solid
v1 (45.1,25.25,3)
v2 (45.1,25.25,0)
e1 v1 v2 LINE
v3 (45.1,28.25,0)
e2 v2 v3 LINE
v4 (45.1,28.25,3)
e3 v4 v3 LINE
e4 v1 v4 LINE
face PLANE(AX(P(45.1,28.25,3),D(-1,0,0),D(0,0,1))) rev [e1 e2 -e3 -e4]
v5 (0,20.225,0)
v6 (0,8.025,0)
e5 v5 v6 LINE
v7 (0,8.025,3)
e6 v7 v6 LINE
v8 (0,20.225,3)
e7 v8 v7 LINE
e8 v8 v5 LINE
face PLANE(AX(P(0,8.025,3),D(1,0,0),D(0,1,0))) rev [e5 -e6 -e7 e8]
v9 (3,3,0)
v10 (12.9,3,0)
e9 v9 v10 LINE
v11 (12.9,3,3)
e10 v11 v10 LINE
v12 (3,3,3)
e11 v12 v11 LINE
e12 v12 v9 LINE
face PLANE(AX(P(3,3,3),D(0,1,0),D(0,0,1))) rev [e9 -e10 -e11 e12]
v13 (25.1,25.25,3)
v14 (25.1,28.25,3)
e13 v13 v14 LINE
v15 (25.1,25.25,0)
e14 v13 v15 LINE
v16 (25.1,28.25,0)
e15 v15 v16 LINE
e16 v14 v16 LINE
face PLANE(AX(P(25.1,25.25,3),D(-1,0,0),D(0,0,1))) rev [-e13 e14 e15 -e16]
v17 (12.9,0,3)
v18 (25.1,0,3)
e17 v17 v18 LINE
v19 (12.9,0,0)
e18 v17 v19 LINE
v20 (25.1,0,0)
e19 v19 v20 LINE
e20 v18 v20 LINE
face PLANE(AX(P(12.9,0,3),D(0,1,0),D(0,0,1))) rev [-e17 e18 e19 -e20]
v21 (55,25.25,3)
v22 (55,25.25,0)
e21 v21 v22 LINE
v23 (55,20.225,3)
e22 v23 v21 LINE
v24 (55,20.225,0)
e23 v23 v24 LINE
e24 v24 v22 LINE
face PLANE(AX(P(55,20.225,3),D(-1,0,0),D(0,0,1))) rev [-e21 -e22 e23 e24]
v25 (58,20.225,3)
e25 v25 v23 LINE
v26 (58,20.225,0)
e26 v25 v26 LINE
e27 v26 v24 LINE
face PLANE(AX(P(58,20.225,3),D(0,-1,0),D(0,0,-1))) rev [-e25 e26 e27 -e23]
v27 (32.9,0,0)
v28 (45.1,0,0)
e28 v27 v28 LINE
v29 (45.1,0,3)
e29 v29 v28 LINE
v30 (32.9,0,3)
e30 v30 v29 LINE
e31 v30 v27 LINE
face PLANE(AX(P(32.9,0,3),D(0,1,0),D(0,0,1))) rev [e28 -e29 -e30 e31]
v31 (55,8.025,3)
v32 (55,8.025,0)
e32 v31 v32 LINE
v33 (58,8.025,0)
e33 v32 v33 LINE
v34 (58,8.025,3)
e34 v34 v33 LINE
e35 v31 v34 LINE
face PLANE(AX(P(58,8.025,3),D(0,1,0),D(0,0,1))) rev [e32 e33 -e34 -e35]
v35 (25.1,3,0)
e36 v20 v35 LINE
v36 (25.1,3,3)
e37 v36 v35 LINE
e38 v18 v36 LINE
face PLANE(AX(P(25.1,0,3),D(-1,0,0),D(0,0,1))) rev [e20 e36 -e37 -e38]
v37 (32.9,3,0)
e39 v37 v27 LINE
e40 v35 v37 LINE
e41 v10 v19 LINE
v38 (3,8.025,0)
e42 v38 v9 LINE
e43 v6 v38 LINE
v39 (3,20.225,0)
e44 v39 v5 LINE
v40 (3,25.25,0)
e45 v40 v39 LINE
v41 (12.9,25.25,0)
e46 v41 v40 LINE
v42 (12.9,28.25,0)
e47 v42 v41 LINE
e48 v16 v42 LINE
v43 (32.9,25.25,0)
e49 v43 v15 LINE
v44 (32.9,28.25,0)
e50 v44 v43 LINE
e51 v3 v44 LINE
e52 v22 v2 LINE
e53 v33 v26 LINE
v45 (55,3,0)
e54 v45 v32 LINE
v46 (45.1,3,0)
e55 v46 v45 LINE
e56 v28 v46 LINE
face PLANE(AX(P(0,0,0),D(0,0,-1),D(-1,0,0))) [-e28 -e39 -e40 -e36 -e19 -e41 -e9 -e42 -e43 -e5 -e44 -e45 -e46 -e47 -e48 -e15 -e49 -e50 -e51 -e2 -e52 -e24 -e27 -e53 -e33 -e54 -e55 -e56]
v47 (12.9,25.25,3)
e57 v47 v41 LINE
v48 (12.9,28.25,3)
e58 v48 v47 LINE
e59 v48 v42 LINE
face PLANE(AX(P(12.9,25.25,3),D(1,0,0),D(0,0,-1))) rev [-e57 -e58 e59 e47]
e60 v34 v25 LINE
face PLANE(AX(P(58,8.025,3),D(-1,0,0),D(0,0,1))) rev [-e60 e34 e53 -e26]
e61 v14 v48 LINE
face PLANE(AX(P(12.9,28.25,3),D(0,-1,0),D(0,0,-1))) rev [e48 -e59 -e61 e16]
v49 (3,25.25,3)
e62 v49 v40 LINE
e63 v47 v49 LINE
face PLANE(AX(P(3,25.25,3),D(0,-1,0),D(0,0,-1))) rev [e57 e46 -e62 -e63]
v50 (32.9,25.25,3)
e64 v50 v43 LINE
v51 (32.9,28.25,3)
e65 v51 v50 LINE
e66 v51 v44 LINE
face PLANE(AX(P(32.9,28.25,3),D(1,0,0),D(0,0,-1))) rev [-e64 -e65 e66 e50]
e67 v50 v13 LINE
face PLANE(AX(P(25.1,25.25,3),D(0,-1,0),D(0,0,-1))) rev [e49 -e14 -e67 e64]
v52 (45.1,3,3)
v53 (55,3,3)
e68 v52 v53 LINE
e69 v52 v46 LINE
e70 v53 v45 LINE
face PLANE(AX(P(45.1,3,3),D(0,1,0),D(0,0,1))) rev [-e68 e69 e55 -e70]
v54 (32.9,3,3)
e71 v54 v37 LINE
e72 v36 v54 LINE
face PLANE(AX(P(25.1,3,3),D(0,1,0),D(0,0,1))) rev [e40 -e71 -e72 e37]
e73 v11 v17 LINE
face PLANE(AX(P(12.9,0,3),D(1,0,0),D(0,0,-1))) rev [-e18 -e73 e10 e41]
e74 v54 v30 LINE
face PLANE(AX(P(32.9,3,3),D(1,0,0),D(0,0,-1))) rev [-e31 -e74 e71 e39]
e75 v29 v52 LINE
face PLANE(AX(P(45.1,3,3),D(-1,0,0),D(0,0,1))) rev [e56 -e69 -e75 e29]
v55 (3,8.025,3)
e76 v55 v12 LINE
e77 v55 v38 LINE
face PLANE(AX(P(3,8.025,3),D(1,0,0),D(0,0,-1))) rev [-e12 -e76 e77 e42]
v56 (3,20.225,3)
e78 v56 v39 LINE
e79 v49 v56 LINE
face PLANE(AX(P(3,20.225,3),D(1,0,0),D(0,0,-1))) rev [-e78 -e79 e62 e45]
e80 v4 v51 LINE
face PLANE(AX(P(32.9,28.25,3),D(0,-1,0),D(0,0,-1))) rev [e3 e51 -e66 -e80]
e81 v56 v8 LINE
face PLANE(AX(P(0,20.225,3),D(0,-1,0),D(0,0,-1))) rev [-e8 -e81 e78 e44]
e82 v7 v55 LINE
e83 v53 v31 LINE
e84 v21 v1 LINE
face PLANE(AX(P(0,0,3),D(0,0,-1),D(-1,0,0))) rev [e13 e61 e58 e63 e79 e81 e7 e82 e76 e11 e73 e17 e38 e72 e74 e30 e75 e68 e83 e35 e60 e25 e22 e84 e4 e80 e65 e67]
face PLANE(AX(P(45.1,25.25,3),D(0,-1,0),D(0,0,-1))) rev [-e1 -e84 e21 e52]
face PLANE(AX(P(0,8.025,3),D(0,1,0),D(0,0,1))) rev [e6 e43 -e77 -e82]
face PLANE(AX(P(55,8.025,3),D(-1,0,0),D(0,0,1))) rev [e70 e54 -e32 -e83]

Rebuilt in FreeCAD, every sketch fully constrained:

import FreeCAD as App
import Part
import Sketcher

V = App.Vector
Q = App.Units.Quantity

doc = App.newDocument("Part")
params = doc.addObject("Spreadsheet::Sheet", "Params")
for row, (alias, value) in enumerate([
    ("sketch1_width", "3 mm"),
    ("sketch1_width2", "12.2 mm"),
    ("sketch1_width3", "9.9 mm"),
    ("sketch1_width4", "7.8 mm"),
    ("pad1_length", "3 mm"),
], start=1):
    params.set(f"A{row}", alias)
    params.set(f"B{row}", "=" + value)
    params.setAlias(f"B{row}", alias)

body = doc.addObject("PartDesign::Body", "Body")

sketch1 = body.newObject("Sketcher::SketchObject", "Sketch")
sketch1.AttachmentSupport = (doc.getObject("XY_Plane"), [""])
sketch1.MapMode = "FlatFace"
sketch1.addGeometry(Part.LineSegment(V(32.9, 0, 0), V(45.1, 0, 0)), False)
sketch1.addGeometry(Part.LineSegment(V(45.1, 0, 0), V(45.1, 3, 0)), False)
sketch1.addGeometry(Part.LineSegment(V(45.1, 3, 0), V(55, 3, 0)), False)
sketch1.addGeometry(Part.LineSegment(V(55, 3, 0), V(55, 8, 0)), False)
sketch1.addGeometry(Part.LineSegment(V(55, 8, 0), V(58, 8, 0)), False)
sketch1.addGeometry(Part.LineSegment(V(58, 8, 0), V(58, 20.2, 0)), False)
sketch1.addGeometry(Part.LineSegment(V(58, 20.2, 0), V(55, 20.2, 0)), False)
sketch1.addGeometry(Part.LineSegment(V(55, 20.2, 0), V(55, 25.2, 0)), False)
sketch1.addGeometry(Part.LineSegment(V(55, 25.2, 0), V(45.1, 25.2, 0)), False)
sketch1.addGeometry(Part.LineSegment(V(45.1, 25.2, 0), V(45.1, 28.2, 0)), False)
sketch1.addGeometry(Part.LineSegment(V(45.1, 28.2, 0), V(32.9, 28.2, 0)), False)
sketch1.addGeometry(Part.LineSegment(V(32.9, 28.2, 0), V(32.9, 25.2, 0)), False)
sketch1.addGeometry(Part.LineSegment(V(32.9, 25.2, 0), V(25.1, 25.2, 0)), False)
sketch1.addGeometry(Part.LineSegment(V(25.1, 25.2, 0), V(25.1, 28.2, 0)), False)
sketch1.addGeometry(Part.LineSegment(V(25.1, 28.2, 0), V(12.9, 28.2, 0)), False)
sketch1.addGeometry(Part.LineSegment(V(12.9, 28.2, 0), V(12.9, 25.2, 0)), False)
sketch1.addGeometry(Part.LineSegment(V(12.9, 25.2, 0), V(3, 25.2, 0)), False)
sketch1.addGeometry(Part.LineSegment(V(3, 25.2, 0), V(3, 20.2, 0)), False)
sketch1.addGeometry(Part.LineSegment(V(3, 20.2, 0), V(0, 20.2, 0)), False)
sketch1.addGeometry(Part.LineSegment(V(0, 20.2, 0), V(0, 8, 0)), False)
sketch1.addGeometry(Part.LineSegment(V(0, 8, 0), V(3, 8, 0)), False)
sketch1.addGeometry(Part.LineSegment(V(3, 8, 0), V(3, 3, 0)), False)
sketch1.addGeometry(Part.LineSegment(V(3, 3, 0), V(12.9, 3, 0)), False)
sketch1.addGeometry(Part.LineSegment(V(12.9, 3, 0), V(12.9, 0, 0)), False)
sketch1.addGeometry(Part.LineSegment(V(12.9, 0, 0), V(25.1, 0, 0)), False)
sketch1.addGeometry(Part.LineSegment(V(25.1, 0, 0), V(25.1, 3, 0)), False)
sketch1.addGeometry(Part.LineSegment(V(25.1, 3, 0), V(32.9, 3, 0)), False)
sketch1.addGeometry(Part.LineSegment(V(32.9, 3, 0), V(32.9, 0, 0)), False)
sketch1.addConstraint(Sketcher.Constraint("Coincident", 0, 2, 1, 1))
sketch1.addConstraint(Sketcher.Constraint("Coincident", 1, 2, 2, 1))
sketch1.addConstraint(Sketcher.Constraint("Coincident", 2, 2, 3, 1))
sketch1.addConstraint(Sketcher.Constraint("Coincident", 3, 2, 4, 1))
sketch1.addConstraint(Sketcher.Constraint("Coincident", 4, 2, 5, 1))
sketch1.addConstraint(Sketcher.Constraint("Coincident", 5, 2, 6, 1))
sketch1.addConstraint(Sketcher.Constraint("Coincident", 6, 2, 7, 1))
sketch1.addConstraint(Sketcher.Constraint("Coincident", 7, 2, 8, 1))
sketch1.addConstraint(Sketcher.Constraint("Coincident", 8, 2, 9, 1))
sketch1.addConstraint(Sketcher.Constraint("Coincident", 9, 2, 10, 1))
sketch1.addConstraint(Sketcher.Constraint("Coincident", 10, 2, 11, 1))
sketch1.addConstraint(Sketcher.Constraint("Coincident", 11, 2, 12, 1))
sketch1.addConstraint(Sketcher.Constraint("Coincident", 12, 2, 13, 1))
sketch1.addConstraint(Sketcher.Constraint("Coincident", 13, 2, 14, 1))
sketch1.addConstraint(Sketcher.Constraint("Coincident", 14, 2, 15, 1))
sketch1.addConstraint(Sketcher.Constraint("Coincident", 15, 2, 16, 1))
sketch1.addConstraint(Sketcher.Constraint("Coincident", 16, 2, 17, 1))
sketch1.addConstraint(Sketcher.Constraint("Coincident", 17, 2, 18, 1))
sketch1.addConstraint(Sketcher.Constraint("Coincident", 18, 2, 19, 1))
sketch1.addConstraint(Sketcher.Constraint("Coincident", 19, 2, 20, 1))
sketch1.addConstraint(Sketcher.Constraint("Coincident", 20, 2, 21, 1))
sketch1.addConstraint(Sketcher.Constraint("Coincident", 21, 2, 22, 1))
sketch1.addConstraint(Sketcher.Constraint("Coincident", 22, 2, 23, 1))
sketch1.addConstraint(Sketcher.Constraint("Coincident", 23, 2, 24, 1))
sketch1.addConstraint(Sketcher.Constraint("Coincident", 24, 2, 25, 1))
sketch1.addConstraint(Sketcher.Constraint("Coincident", 25, 2, 26, 1))
sketch1.addConstraint(Sketcher.Constraint("Coincident", 26, 2, 27, 1))
sketch1.addConstraint(Sketcher.Constraint("Coincident", 27, 2, 0, 1))
sketch1.addConstraint(Sketcher.Constraint("Horizontal", 0))
sketch1.addConstraint(Sketcher.Constraint("Vertical", 1))
sketch1.addConstraint(Sketcher.Constraint("Horizontal", 2))
sketch1.addConstraint(Sketcher.Constraint("Vertical", 3))
sketch1.addConstraint(Sketcher.Constraint("Horizontal", 4))
sketch1.addConstraint(Sketcher.Constraint("Vertical", 5))
sketch1.addConstraint(Sketcher.Constraint("Horizontal", 6))
sketch1.addConstraint(Sketcher.Constraint("Vertical", 7))
sketch1.addConstraint(Sketcher.Constraint("Horizontal", 8))
sketch1.addConstraint(Sketcher.Constraint("Vertical", 9))
sketch1.addConstraint(Sketcher.Constraint("Horizontal", 10))
sketch1.addConstraint(Sketcher.Constraint("Vertical", 11))
sketch1.addConstraint(Sketcher.Constraint("Horizontal", 12))
sketch1.addConstraint(Sketcher.Constraint("Vertical", 13))
sketch1.addConstraint(Sketcher.Constraint("Horizontal", 14))
sketch1.addConstraint(Sketcher.Constraint("Vertical", 15))
sketch1.addConstraint(Sketcher.Constraint("Horizontal", 16))
sketch1.addConstraint(Sketcher.Constraint("Vertical", 17))
sketch1.addConstraint(Sketcher.Constraint("Horizontal", 18))
sketch1.addConstraint(Sketcher.Constraint("Vertical", 19))
sketch1.addConstraint(Sketcher.Constraint("Horizontal", 20))
sketch1.addConstraint(Sketcher.Constraint("Vertical", 21))
sketch1.addConstraint(Sketcher.Constraint("Horizontal", 22))
sketch1.addConstraint(Sketcher.Constraint("Vertical", 23))
sketch1.addConstraint(Sketcher.Constraint("Horizontal", 24))
sketch1.addConstraint(Sketcher.Constraint("Vertical", 25))
sketch1.addConstraint(Sketcher.Constraint("Horizontal", 26))
sketch1.addConstraint(Sketcher.Constraint("Vertical", 27))
sketch1.addConstraint(Sketcher.Constraint("PointOnObject", 0, 2, -1))
sketch1.addConstraint(Sketcher.Constraint("PointOnObject", 18, 2, -2))
sketch1.addConstraint(Sketcher.Constraint("PointOnObject", 23, 2, -1))
sketch1.addConstraint(Sketcher.Constraint("Horizontal", 8, 2, 11, 2))
sketch1.addConstraint(Sketcher.Constraint("Horizontal", 10, 2, 13, 2))
sketch1.addConstraint(Sketcher.Constraint("Horizontal", 12, 2, 15, 2))
sketch1.addConstraint(Sketcher.Constraint("Horizontal", 6, 2, 17, 2))
sketch1.addConstraint(Sketcher.Constraint("Horizontal", 4, 2, 19, 2))
sketch1.addConstraint(Sketcher.Constraint("Horizontal", 2, 2, 21, 2))
sketch1.addConstraint(Sketcher.Constraint("Horizontal", 22, 2, 25, 2))
sketch1.addConstraint(Sketcher.Constraint("Vertical", 3, 2, 6, 2))
sketch1.addConstraint(Sketcher.Constraint("Vertical", 1, 2, 8, 2))
sketch1.addConstraint(Sketcher.Constraint("Vertical", 17, 2, 20, 2))
sketch1.addConstraint(Sketcher.Constraint("Vertical", 15, 2, 22, 2))
sketch1.addConstraint(Sketcher.Constraint("Vertical", 13, 2, 24, 2))
sketch1.addConstraint(Sketcher.Constraint("Vertical", 11, 2, 26, 2))
sketch1.addConstraint(Sketcher.Constraint("Equal", 10, 14))
sketch1.addConstraint(Sketcher.Constraint("Equal", 8, 16))
sketch1.addConstraint(Sketcher.Constraint("Equal", 6, 18))
sketch1.addConstraint(Sketcher.Constraint("Equal", 20, 1))
sketch1.addConstraint(Sketcher.Constraint("Equal", 24, 5))
sketch1.addConstraint(Sketcher.Constraint("Equal", 3, 7))
sketch1.addConstraint(Sketcher.Constraint("Equal", 1, 9))
sketch1.addConstraint(Sketcher.Constraint("DistanceX", 4, 1, 4, 2, Q("3 mm")))
sketch1.addConstraint(Sketcher.Constraint("DistanceX", 0, 1, 0, 2, Q("12.2 mm")))
sketch1.addConstraint(Sketcher.Constraint("DistanceX", 2, 1, 2, 2, Q("9.9 mm")))
sketch1.addConstraint(Sketcher.Constraint("DistanceX", 12, 2, 12, 1, Q("7.8 mm")))
sketch1.addConstraint(Sketcher.Constraint("DistanceY", 3, 1, 3, 2, Q("5.025 mm")))
sketch1.setExpression("Constraints[79]", "Params.sketch1_width")
sketch1.setExpression("Constraints[80]", "Params.sketch1_width2")
sketch1.setExpression("Constraints[81]", "Params.sketch1_width3")
sketch1.setExpression("Constraints[82]", "Params.sketch1_width4")
pad1 = body.newObject("PartDesign::Pad", "Pad")
pad1.Profile = sketch1
pad1.setExpression("Length", "Params.pad1_length")

doc.recompute()
